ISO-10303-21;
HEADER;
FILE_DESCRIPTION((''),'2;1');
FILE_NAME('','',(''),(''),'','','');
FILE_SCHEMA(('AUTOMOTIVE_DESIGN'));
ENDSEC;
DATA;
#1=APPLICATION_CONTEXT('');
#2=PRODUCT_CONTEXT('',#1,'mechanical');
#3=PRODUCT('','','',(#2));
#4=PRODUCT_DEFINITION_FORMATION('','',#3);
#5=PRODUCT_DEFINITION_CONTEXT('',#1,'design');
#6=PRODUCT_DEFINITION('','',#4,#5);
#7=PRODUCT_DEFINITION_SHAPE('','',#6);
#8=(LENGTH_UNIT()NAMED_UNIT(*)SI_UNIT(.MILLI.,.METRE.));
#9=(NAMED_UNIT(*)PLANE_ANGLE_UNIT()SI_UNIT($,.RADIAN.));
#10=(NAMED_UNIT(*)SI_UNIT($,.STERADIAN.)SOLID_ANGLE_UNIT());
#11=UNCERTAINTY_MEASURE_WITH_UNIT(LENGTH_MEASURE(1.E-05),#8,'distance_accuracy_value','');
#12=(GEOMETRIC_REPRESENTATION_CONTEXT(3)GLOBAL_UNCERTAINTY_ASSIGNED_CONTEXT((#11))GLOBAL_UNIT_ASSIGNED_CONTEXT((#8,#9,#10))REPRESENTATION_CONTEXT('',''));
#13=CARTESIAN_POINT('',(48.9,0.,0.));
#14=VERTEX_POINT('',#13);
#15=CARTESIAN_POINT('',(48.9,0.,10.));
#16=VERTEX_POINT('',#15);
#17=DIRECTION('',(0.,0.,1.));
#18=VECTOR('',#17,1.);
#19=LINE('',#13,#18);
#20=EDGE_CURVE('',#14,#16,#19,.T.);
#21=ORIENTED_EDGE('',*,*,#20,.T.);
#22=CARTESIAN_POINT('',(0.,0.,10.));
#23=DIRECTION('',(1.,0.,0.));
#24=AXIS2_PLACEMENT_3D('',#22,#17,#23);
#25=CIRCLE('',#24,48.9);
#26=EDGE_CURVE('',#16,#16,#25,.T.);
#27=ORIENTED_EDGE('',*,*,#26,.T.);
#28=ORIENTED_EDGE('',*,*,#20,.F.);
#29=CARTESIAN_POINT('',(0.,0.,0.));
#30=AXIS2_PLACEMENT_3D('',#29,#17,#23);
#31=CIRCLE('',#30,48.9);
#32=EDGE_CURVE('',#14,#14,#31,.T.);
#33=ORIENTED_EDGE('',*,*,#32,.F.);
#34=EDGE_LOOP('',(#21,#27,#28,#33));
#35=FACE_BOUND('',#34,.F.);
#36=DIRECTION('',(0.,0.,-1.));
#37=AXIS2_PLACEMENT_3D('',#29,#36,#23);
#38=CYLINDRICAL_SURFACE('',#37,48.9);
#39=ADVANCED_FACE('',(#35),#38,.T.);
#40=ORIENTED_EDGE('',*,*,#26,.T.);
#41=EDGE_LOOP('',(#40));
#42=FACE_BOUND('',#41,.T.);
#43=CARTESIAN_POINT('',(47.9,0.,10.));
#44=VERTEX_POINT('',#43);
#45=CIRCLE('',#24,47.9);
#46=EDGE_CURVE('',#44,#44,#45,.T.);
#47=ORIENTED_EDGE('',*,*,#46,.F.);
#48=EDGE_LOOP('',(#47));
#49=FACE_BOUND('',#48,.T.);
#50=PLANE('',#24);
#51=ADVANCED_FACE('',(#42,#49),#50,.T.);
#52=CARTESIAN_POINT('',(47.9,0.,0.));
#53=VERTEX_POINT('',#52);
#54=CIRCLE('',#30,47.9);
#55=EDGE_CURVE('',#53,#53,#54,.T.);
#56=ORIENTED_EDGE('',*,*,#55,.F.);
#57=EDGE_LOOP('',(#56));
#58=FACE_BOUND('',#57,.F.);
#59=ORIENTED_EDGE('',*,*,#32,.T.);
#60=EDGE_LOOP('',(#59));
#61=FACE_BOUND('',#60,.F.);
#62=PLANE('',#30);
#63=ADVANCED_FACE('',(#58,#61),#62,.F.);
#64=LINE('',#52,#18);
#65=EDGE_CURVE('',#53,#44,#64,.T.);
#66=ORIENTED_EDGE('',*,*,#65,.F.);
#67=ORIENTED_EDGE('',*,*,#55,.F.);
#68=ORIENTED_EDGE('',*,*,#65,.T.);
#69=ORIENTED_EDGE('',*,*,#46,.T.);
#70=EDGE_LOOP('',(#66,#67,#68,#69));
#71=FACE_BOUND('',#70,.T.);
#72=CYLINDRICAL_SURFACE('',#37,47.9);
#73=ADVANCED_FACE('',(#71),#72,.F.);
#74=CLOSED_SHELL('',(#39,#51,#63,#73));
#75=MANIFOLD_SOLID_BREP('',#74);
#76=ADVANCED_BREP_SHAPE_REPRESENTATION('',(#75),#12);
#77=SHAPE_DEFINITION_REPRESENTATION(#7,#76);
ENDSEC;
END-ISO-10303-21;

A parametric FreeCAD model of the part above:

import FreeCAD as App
import Part
import Sketcher

V = App.Vector

doc = App.newDocument("Part")
body = doc.addObject("PartDesign::Body", "Body")

# Sketch on XY plane
sketch1 = doc.addObject("Sketcher::SketchObject", "Sketch")
body.addObject(sketch1)
sketch1.AttachmentSupport = (doc.XY_Plane, [""])
sketch1.MapMode = "FlatFace"
sketch1.addGeometry(Part.Circle(V(0, 0, 0), V(0, 0, 1), 49), False)
sketch1.addGeometry(Part.Circle(V(0, 0, 0), V(0, 0, 1), 48), False)
sketch1.addConstraint(Sketcher.Constraint("Coincident", 0, 3, -1, 1))
sketch1.addConstraint(Sketcher.Constraint("Coincident", 1, 3, -1, 1))
sketch1.addConstraint(Sketcher.Constraint("Diameter", 0, 97.8))
sketch1.addConstraint(Sketcher.Constraint("Diameter", 1, 95.8))
pad1 = doc.addObject("PartDesign::Pad", "Pad")
body.addObject(pad1)
pad1.Profile = sketch1
pad1.Length = 10

doc.recompute()
